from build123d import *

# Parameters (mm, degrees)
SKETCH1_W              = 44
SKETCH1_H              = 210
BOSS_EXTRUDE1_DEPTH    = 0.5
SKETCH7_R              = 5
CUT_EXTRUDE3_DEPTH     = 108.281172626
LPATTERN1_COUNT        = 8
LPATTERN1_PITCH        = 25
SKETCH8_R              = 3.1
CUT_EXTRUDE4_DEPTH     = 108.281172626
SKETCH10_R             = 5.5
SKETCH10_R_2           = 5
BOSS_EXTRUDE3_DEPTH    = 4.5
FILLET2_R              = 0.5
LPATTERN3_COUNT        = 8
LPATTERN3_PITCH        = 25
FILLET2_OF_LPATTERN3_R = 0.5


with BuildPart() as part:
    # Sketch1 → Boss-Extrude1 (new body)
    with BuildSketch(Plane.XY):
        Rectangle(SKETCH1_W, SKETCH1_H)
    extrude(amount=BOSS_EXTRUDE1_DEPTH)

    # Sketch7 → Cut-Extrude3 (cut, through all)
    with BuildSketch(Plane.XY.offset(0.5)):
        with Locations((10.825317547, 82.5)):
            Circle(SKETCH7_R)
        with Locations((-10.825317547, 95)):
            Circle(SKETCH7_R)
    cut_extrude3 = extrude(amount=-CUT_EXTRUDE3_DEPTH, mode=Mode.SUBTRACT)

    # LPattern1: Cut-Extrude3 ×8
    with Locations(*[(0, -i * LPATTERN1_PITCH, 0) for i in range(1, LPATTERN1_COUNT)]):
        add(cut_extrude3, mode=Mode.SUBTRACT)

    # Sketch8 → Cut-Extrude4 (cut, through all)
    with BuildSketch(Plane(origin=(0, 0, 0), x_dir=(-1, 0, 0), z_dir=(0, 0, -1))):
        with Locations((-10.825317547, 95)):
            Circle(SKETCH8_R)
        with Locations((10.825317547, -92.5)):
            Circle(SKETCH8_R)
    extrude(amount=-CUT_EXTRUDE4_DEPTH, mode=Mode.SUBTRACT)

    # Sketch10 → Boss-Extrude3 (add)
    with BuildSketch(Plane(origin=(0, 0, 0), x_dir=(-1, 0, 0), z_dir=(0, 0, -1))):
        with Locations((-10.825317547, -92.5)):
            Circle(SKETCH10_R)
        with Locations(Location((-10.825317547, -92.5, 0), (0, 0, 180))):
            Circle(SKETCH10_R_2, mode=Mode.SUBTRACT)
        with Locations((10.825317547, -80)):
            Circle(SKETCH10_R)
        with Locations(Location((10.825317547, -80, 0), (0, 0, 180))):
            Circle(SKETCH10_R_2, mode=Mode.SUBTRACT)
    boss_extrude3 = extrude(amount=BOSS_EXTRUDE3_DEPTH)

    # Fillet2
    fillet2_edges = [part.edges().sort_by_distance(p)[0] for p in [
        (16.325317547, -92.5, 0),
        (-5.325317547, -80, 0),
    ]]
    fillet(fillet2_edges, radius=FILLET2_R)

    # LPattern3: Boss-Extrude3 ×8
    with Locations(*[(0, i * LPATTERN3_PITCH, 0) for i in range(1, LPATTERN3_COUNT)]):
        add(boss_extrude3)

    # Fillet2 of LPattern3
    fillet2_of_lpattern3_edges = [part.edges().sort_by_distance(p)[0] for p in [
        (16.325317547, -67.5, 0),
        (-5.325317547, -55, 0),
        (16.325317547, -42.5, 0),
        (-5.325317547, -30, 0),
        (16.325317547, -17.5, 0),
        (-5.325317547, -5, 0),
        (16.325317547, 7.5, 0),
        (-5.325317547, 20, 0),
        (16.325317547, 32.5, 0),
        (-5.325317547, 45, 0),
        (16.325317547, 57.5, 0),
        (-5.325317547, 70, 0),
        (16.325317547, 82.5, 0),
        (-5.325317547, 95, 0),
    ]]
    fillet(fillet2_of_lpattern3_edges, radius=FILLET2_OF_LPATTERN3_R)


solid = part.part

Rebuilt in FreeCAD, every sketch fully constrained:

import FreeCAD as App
import Part
import Sketcher
Q = App.Units.Quantity


def edges_at(feature, points):
    """Names of the edges that pass closest to the given points."""
    edges = feature.Shape.Edges
    near = lambda p: min(range(len(edges)), key=lambda i: edges[i].distToShape(Part.Vertex(*p))[0])
    return sorted({f"Edge{near(p) + 1}" for p in points})

doc = App.newDocument("Part")
body = doc.addObject("PartDesign::Body", "Body")

# Sketch on XY plane
sketch1 = body.newObject("Sketcher::SketchObject", "Sketch")
sketch1.AttachmentSupport = (doc.getObject("XY_Plane"), [""])
sketch1.MapMode = "FlatFace"
sketch1.addGeometry([
    Part.LineSegment(App.Vector(-22, 105, 0), App.Vector(-22, -105, 0)),
    Part.LineSegment(App.Vector(-22, -105, 0), App.Vector(22, -105, 0)),
    Part.LineSegment(App.Vector(22, -105, 0), App.Vector(22, 105, 0)),
    Part.LineSegment(App.Vector(22, 105, 0), App.Vector(-22, 105, 0)),
], False)
sketch1.addConstraint([
    Sketcher.Constraint("Coincident", 0, 2, 1, 1),
    Sketcher.Constraint("Coincident", 1, 2, 2, 1),
    Sketcher.Constraint("Coincident", 2, 2, 3, 1),
    Sketcher.Constraint("Coincident", 3, 2, 0, 1),
    Sketcher.Constraint("Vertical", 0),
    Sketcher.Constraint("Horizontal", 1),
    Sketcher.Constraint("Vertical", 2),
    Sketcher.Constraint("Horizontal", 3),
    Sketcher.Constraint("Symmetric", 0, 2, 2, 2, -1, 1),
    Sketcher.Constraint("DistanceX", 1, 1, 1, 2, Q("44 mm")),
    Sketcher.Constraint("DistanceY", 0, 2, 0, 1, Q("210 mm")),
])
pad1 = body.newObject("PartDesign::Pad", "Pad")
pad1.Profile = sketch1
pad1.Length = 0.5

# Sketch on XY plane
sketch2 = body.newObject("Sketcher::SketchObject", "Sketch001")
sketch2.AttachmentSupport = (doc.getObject("XY_Plane"), [""])
sketch2.MapMode = "FlatFace"
sketch2.AttachmentOffset = App.Placement(App.Vector(0, 0, 0.5), App.Rotation())
sketch2.addGeometry([
    Part.Circle(App.Vector(11, 82, 0), App.Vector(0, 0, 1), 5),
    Part.Circle(App.Vector(-11, 95, 0), App.Vector(0, 0, 1), 5),
], False)
sketch2.addConstraint([
    Sketcher.Constraint("Equal", 0, 1),
    Sketcher.Constraint("Diameter", 0, Q("10 mm")),
    Sketcher.Constraint("DistanceY", -1, 1, 1, 3, Q("95 mm")),
    Sketcher.Constraint("DistanceY", -1, 1, 0, 3, Q("82.5 mm")),
    Sketcher.Constraint("DistanceX", -1, 1, 0, 3, Q("10.825318 mm")),
    Sketcher.Constraint("DistanceX", 1, 3, -1, 1, Q("10.825318 mm")),
])
pocket1 = body.newObject("PartDesign::Pocket", "Pocket")
pocket1.Profile = sketch2
pocket1.Type = "ThroughAll"
doc.recompute()

linearpattern = body.newObject("PartDesign::LinearPattern", "LinearPattern")
linearpattern.Originals = [pocket1]
linearpattern.Direction = (doc.getObject("Y_Axis"), [""])
linearpattern.Mode = "offset"
linearpattern.Offset = 25
linearpattern.Occurrences = 8
linearpattern.Reversed = True
body.Tip = linearpattern

# Sketch on XY plane
sketch3 = body.newObject("Sketcher::SketchObject", "Sketch002")
sketch3.AttachmentSupport = (doc.getObject("XY_Plane"), [""])
sketch3.MapMode = "FlatFace"
sketch3.addGeometry([
    Part.Circle(App.Vector(10.8, 95, 0), App.Vector(0, 0, 1), 3.1),
    Part.Circle(App.Vector(-10.8, -92.5, 0), App.Vector(0, 0, 1), 3.1),
], False)
sketch3.addConstraint([
    Sketcher.Constraint("Equal", 0, 1),
    Sketcher.Constraint("Diameter", 0, Q("6.2 mm")),
    Sketcher.Constraint("DistanceY", -1, 1, 0, 3, Q("95 mm")),
    Sketcher.Constraint("DistanceY", 1, 3, -1, 1, Q("92.5 mm")),
    Sketcher.Constraint("DistanceX", -1, 1, 0, 3, Q("10.825318 mm")),
    Sketcher.Constraint("DistanceX", 1, 3, -1, 1, Q("10.825318 mm")),
])
pocket2 = body.newObject("PartDesign::Pocket", "Pocket001")
pocket2.Profile = sketch3
pocket2.Type = "ThroughAll"
pocket2.Reversed = True

# Sketch on XY plane
sketch4 = body.newObject("Sketcher::SketchObject", "Sketch003")
sketch4.AttachmentSupport = (doc.getObject("XY_Plane"), [""])
sketch4.MapMode = "FlatFace"
sketch4.addGeometry([
    Part.Circle(App.Vector(11, -92, 0), App.Vector(0, 0, 1), 6),
    Part.Circle(App.Vector(11, -92, 0), App.Vector(0, 0, 1), 5),
    Part.Circle(App.Vector(-11, -80, 0), App.Vector(0, 0, 1), 6),
    Part.Circle(App.Vector(-11, -80, 0), App.Vector(0, 0, 1), 5),
], False)
sketch4.addConstraint([
    Sketcher.Constraint("Coincident", 1, 3, 0, 3),
    Sketcher.Constraint("Coincident", 3, 3, 2, 3),
    Sketcher.Constraint("Equal", 0, 2),
    Sketcher.Constraint("Equal", 1, 3),
    Sketcher.Constraint("Diameter", 0, Q("11 mm")),
    Sketcher.Constraint("Diameter", 1, Q("10 mm")),
    Sketcher.Constraint("DistanceY", 2, 3, -1, 1, Q("80 mm")),
    Sketcher.Constraint("DistanceY", 0, 3, -1, 1, Q("92.5 mm")),
    Sketcher.Constraint("DistanceX", -1, 1, 0, 3, Q("10.825318 mm")),
    Sketcher.Constraint("DistanceX", 2, 3, -1, 1, Q("10.825318 mm")),
])
pad2 = body.newObject("PartDesign::Pad", "Pad001")
pad2.Profile = sketch4
pad2.Length = 4.5
pad2.Reversed = True
doc.recompute()

fillet = body.newObject("PartDesign::Fillet", "Fillet")
fillet.Base = (pad2, edges_at(pad2, [(16.325, -92.5, 0), (-5.325, -80, 0)]))
fillet.Radius = 0.5
doc.recompute()

linearpattern2 = body.newObject("PartDesign::LinearPattern", "LinearPattern001")
linearpattern2.Originals = [pad2]
linearpattern2.Direction = (doc.getObject("Y_Axis"), [""])
linearpattern2.Mode = "offset"
linearpattern2.Offset = 25
linearpattern2.Occurrences = 8
body.Tip = linearpattern2
doc.recompute()

fillet2 = body.newObject("PartDesign::Fillet", "Fillet001")
fillet2.Base = (linearpattern2, edges_at(linearpattern2, [
    (16.325, -67.5, 0),
    (-5.325, -55, 0),
    (16.325, -42.5, 0),
    (-5.325, -30, 0),
    (16.325, -17.5, 0),
    (-5.325, -5, 0),
    (16.325, 7.5, 0),
    (-5.325, 20, 0),
    (16.325, 32.5, 0),
    (-5.325, 45, 0),
    (16.325, 57.5, 0),
    (-5.325, 70, 0),
    (16.325, 82.5, 0),
    (-5.325, 95, 0),
]))
fillet2.Radius = 0.5

doc.recompute()
